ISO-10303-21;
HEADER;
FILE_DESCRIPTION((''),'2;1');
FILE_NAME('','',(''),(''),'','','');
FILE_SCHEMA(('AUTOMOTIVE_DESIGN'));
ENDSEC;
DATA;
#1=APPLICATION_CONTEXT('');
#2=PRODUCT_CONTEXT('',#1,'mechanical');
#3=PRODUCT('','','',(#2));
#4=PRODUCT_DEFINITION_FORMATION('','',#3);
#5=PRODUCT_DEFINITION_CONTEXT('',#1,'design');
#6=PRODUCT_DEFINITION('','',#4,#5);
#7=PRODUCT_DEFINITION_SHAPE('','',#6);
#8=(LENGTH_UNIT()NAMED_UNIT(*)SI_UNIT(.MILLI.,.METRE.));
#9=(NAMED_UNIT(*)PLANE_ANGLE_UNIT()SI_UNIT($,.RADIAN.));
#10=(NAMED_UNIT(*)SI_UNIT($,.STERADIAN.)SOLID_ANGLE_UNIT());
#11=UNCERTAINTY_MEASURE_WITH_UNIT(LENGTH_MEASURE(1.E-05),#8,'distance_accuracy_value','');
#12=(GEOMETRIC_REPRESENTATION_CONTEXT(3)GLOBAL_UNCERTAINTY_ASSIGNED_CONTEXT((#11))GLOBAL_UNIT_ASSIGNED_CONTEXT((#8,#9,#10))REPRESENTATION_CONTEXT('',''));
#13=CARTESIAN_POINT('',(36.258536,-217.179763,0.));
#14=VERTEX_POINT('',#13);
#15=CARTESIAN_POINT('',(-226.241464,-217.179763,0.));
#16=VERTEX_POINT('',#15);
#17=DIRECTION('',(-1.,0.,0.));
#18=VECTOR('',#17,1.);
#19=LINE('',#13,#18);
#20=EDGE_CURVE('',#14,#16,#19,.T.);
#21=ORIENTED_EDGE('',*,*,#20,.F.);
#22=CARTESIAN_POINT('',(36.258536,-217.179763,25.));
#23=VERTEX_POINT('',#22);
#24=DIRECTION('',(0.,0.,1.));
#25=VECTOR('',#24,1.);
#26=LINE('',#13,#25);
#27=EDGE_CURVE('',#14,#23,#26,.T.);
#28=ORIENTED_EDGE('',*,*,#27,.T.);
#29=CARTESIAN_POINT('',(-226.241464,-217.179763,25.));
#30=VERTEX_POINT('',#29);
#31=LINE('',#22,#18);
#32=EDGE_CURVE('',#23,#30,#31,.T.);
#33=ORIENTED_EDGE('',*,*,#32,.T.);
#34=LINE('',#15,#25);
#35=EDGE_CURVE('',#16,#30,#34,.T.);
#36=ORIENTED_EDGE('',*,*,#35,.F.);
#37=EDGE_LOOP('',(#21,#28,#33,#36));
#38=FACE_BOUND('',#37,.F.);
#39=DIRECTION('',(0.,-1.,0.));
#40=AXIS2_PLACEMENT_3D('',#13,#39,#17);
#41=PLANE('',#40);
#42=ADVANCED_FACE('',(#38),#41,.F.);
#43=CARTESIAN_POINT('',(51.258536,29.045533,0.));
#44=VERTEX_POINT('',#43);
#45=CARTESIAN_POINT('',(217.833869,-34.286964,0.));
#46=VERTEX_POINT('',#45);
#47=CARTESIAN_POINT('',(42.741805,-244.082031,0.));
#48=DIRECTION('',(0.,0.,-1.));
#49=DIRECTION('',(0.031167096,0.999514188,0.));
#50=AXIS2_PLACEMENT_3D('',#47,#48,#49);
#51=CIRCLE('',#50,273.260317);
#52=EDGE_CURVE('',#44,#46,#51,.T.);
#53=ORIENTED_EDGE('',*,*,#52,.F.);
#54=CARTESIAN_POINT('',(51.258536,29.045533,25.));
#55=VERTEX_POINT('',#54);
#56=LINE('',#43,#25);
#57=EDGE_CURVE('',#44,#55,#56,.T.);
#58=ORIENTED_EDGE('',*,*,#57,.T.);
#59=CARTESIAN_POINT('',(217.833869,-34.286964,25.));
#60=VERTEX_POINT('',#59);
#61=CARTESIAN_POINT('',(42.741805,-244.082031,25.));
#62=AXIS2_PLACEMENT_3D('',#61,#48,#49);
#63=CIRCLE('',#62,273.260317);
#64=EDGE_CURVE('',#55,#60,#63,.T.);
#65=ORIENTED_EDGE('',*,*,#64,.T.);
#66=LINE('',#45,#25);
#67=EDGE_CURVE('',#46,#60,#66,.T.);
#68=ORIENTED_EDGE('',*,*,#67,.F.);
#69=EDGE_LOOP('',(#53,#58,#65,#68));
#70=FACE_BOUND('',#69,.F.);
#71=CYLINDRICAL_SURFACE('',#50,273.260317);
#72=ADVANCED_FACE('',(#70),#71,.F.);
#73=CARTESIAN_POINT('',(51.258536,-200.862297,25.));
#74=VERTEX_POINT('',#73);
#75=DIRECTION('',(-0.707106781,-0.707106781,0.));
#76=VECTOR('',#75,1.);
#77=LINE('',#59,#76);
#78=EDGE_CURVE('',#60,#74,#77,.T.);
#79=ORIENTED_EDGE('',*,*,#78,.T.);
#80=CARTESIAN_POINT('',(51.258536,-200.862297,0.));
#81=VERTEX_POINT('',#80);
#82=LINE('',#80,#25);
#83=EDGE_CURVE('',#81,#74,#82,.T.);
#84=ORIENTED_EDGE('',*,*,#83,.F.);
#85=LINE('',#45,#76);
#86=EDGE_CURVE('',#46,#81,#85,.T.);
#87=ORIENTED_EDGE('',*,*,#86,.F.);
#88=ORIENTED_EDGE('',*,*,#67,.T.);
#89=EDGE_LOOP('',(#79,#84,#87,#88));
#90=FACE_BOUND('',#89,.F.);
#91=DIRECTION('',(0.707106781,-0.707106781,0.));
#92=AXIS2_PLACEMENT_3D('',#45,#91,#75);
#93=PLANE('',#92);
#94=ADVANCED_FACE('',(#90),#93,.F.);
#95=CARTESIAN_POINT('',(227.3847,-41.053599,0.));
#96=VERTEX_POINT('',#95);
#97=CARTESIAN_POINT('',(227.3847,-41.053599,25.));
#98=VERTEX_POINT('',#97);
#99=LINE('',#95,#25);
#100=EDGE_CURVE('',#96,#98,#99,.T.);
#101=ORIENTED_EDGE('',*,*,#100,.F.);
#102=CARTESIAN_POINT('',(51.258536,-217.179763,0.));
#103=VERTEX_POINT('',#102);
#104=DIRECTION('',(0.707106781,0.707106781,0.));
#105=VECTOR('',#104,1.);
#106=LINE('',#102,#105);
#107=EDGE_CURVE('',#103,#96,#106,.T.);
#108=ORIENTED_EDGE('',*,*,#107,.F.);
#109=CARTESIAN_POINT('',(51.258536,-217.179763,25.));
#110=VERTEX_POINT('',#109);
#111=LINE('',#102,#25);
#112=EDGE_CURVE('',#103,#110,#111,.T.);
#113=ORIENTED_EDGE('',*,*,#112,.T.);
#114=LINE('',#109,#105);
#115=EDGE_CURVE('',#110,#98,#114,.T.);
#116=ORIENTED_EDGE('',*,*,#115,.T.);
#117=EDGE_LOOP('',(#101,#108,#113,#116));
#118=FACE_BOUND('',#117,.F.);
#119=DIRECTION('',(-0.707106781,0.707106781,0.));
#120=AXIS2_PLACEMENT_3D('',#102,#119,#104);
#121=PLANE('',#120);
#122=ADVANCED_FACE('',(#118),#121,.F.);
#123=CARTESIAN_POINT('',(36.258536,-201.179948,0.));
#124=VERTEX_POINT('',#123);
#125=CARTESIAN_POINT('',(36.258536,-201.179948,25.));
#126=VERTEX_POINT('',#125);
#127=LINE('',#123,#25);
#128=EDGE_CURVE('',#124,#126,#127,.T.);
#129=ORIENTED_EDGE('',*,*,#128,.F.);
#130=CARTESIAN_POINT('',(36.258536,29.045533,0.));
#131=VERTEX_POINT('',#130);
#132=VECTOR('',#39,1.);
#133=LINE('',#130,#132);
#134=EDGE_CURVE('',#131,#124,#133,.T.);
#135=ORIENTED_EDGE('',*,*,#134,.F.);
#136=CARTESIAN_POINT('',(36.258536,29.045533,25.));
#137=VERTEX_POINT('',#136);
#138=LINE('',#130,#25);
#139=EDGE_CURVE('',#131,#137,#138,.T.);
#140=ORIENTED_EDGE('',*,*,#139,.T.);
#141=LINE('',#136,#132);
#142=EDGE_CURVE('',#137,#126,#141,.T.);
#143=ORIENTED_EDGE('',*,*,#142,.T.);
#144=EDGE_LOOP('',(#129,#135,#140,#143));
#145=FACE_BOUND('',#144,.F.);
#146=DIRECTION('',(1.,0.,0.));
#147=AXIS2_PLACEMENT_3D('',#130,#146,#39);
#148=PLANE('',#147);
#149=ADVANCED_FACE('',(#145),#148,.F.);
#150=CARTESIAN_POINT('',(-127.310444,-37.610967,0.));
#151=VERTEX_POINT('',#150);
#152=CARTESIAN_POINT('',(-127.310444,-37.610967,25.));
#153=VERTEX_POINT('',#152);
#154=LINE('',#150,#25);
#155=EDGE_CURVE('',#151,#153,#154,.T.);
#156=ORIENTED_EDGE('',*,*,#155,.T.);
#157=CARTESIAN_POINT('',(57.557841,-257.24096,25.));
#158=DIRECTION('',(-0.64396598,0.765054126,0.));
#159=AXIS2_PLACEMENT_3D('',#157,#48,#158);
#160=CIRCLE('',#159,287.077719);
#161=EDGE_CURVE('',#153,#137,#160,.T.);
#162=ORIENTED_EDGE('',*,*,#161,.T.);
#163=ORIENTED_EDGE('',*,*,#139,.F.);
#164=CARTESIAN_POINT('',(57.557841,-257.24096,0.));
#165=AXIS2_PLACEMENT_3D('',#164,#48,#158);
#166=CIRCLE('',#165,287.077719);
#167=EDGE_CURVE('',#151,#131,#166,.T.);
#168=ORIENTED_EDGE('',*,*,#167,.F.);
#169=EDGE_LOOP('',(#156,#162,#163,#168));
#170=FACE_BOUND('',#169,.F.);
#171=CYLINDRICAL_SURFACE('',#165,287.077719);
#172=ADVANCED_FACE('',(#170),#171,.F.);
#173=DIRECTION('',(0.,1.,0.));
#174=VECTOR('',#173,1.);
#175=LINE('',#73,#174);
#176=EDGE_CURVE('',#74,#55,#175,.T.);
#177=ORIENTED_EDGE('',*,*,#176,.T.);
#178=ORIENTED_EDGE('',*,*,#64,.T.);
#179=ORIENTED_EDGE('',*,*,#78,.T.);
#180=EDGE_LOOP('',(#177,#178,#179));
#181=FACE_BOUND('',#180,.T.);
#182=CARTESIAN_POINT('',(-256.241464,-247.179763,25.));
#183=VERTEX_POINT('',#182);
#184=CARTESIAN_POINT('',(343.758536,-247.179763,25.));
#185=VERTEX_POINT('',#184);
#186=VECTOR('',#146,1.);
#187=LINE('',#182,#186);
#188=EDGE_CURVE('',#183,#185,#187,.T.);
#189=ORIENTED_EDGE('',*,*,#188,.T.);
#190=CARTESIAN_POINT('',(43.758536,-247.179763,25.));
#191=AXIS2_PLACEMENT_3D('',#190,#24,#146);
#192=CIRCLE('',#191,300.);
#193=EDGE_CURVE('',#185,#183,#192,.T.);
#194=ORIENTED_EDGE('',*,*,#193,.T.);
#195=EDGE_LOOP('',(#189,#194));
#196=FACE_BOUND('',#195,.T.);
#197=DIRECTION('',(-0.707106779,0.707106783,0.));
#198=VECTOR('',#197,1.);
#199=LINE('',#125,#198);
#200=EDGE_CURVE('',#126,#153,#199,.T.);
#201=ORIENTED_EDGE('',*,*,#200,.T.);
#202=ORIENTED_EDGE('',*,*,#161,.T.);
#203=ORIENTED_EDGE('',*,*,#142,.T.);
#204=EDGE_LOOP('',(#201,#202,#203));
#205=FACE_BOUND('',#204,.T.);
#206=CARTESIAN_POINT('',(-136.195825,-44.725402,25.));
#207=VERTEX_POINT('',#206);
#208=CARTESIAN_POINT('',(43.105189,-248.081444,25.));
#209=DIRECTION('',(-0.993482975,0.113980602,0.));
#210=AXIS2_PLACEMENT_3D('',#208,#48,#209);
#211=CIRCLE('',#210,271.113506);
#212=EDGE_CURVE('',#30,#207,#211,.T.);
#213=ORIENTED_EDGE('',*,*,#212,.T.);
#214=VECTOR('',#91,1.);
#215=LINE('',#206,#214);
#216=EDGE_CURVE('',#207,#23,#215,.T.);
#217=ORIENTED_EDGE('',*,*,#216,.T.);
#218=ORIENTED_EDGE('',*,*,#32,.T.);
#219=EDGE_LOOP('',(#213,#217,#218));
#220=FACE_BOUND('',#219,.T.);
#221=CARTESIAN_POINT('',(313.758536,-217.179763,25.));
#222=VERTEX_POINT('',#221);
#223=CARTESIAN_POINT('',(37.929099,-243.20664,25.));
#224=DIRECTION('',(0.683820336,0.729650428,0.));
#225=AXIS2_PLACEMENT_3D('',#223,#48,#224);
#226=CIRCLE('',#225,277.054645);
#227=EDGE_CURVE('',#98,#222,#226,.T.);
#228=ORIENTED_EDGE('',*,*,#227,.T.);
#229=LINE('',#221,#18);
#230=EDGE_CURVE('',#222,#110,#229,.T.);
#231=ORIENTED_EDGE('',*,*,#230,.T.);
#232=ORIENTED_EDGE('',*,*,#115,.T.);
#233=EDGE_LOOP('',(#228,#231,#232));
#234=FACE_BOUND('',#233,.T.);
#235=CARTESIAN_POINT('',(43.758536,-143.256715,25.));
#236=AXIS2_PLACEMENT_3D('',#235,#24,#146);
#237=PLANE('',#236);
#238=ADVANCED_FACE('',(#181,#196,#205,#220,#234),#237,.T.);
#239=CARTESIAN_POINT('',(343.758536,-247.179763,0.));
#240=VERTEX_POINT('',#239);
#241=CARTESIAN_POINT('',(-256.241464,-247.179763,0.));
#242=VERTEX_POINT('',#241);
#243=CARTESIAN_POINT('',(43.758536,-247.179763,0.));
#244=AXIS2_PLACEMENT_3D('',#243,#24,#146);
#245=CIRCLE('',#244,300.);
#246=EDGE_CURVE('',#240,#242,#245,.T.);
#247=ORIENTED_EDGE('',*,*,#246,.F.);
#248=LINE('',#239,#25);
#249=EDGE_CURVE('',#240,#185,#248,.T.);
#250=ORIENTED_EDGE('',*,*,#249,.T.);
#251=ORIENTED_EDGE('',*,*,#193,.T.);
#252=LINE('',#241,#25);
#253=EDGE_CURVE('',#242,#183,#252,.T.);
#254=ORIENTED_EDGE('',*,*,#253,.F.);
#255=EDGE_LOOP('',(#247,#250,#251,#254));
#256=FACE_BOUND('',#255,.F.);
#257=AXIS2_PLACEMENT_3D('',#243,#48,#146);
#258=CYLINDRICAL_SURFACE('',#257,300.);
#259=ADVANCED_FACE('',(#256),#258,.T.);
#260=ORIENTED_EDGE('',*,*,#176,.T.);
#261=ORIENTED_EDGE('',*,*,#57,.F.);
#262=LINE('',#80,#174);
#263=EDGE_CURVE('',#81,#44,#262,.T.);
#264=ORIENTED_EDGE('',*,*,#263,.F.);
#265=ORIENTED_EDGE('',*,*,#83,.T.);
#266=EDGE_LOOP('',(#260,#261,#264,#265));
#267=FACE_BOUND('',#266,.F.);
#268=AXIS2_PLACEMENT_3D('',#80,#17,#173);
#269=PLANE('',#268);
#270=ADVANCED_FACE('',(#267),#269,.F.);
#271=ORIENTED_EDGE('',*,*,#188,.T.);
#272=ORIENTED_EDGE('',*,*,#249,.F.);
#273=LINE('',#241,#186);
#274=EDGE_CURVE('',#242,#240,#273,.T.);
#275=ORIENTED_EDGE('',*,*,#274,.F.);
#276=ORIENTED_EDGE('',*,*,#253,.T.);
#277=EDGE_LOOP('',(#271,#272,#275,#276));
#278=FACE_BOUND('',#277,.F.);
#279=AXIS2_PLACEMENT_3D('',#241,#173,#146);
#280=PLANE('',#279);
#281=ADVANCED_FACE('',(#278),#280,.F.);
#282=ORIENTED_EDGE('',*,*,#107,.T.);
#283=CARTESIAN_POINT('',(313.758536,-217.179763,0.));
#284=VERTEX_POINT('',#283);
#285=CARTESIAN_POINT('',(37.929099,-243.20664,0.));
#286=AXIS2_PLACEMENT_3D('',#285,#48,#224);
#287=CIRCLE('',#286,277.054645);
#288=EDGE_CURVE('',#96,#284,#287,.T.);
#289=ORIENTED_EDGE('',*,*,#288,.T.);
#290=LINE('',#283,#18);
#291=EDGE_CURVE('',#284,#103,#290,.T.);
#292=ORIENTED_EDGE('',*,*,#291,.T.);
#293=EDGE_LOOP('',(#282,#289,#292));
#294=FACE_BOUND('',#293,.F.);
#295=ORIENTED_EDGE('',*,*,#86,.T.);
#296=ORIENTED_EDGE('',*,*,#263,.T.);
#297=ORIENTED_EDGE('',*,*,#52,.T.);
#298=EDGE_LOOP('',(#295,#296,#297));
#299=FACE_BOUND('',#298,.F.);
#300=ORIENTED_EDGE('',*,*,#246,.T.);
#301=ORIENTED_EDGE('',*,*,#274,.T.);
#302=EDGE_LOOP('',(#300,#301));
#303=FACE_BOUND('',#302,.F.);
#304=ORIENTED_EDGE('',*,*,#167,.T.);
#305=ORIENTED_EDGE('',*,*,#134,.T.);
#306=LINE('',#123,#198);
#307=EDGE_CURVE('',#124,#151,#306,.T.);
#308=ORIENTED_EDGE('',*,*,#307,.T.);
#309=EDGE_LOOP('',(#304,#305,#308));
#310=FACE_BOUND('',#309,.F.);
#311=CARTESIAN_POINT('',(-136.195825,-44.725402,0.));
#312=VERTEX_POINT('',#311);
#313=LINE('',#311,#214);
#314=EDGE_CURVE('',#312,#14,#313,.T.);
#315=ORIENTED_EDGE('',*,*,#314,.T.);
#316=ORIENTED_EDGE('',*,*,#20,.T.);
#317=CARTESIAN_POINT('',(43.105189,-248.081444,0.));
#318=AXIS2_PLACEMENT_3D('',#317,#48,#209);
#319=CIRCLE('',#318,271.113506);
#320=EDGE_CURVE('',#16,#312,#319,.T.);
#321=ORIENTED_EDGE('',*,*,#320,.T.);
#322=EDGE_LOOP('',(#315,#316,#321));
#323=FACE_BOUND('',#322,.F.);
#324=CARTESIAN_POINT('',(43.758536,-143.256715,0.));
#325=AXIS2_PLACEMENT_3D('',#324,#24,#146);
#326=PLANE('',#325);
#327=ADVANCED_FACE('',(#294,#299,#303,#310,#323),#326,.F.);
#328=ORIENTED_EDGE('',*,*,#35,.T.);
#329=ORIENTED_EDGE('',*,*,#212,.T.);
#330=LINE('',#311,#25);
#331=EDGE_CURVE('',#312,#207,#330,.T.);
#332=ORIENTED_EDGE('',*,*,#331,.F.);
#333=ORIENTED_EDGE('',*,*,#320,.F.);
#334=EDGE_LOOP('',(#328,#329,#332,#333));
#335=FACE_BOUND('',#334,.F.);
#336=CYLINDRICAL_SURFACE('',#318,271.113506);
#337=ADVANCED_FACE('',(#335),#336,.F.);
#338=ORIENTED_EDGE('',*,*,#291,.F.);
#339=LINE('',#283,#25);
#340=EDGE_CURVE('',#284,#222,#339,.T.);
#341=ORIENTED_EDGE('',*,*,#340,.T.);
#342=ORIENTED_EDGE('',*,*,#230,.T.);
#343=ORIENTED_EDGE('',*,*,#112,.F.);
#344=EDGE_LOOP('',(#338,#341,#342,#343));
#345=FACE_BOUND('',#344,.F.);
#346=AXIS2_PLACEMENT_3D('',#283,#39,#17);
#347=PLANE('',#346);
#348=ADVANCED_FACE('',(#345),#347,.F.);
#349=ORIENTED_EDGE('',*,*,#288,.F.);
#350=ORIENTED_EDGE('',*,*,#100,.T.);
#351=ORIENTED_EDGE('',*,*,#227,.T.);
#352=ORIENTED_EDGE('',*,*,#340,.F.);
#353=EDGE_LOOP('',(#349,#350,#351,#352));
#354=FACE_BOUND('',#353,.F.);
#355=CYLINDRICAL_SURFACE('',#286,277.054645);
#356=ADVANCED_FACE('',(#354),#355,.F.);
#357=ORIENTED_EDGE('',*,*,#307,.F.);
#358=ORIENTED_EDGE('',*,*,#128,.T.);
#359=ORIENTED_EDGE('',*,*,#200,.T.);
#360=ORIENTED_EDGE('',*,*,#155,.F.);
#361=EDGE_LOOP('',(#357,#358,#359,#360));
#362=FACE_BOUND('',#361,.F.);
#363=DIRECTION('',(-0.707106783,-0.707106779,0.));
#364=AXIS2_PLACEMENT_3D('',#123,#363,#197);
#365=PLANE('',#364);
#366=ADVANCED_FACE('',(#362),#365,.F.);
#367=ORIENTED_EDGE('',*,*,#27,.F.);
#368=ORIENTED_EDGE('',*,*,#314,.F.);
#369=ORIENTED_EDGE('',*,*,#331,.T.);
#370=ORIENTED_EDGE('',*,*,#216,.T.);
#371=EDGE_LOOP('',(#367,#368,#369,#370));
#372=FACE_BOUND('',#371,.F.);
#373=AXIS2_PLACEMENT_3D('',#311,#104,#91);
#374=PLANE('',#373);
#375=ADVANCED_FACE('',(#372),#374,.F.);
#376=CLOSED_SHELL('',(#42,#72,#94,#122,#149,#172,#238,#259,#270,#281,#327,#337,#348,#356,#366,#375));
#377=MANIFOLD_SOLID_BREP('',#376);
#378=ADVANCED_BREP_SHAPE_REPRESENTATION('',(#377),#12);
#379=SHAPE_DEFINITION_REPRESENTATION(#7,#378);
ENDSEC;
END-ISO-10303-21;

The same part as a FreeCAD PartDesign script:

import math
import FreeCAD as App
import Part
import Sketcher
from FreeCAD import Vector
Q = App.Units.Quantity

doc = App.newDocument("Part")
body = doc.addObject("PartDesign::Body", "Body")

sketch1 = body.newObject("Sketcher::SketchObject", "Sketch")
sketch1.AttachmentSupport = (doc.getObject("XY_Plane"), [""])
sketch1.MapMode = "FlatFace"
sketch1.addGeometry(Part.LineSegment(Vector(-256.241464, -247.179763, 0), Vector(343.758536, -247.179763, 0)), False)
sketch1.addGeometry(Part.ArcOfCircle(Part.Circle(Vector(43.758536, -247.179763, 0), Vector(0, 0, 1), 300), math.radians(0), math.radians(180)), False)
sketch1.addGeometry(Part.ArcOfCircle(Part.Circle(Vector(43.105189, -248.081444, 0), Vector(0, 0, 1), 271.113506), math.radians(131.40294), math.radians(173.455169)), False)
sketch1.addGeometry(Part.LineSegment(Vector(-136.195825, -44.725402, 0), Vector(36.258536, -217.179763, 0)), False)
sketch1.addGeometry(Part.LineSegment(Vector(36.258536, -217.179763, 0), Vector(-226.241464, -217.179763, 0)), False)
sketch1.addGeometry(Part.ArcOfCircle(Part.Circle(Vector(37.929099, -243.20664, 0), Vector(0, 0, 1), 277.054645), math.radians(5.390389), math.radians(46.857096)), False)
sketch1.addGeometry(Part.LineSegment(Vector(313.758536, -217.179763, 0), Vector(51.258536, -217.179763, 0)), False)
sketch1.addGeometry(Part.LineSegment(Vector(51.258536, -217.179763, 0), Vector(227.3847, -41.053599, 0)), False)
sketch1.addGeometry(Part.ArcOfCircle(Part.Circle(Vector(57.557841, -257.24096, 0), Vector(0, 0, 1), 287.077719), math.radians(94.254885), math.radians(130.088192)), False)
sketch1.addGeometry(Part.LineSegment(Vector(36.258536, 29.045533, 0), Vector(36.258536, -201.179948, 0)), False)
sketch1.addGeometry(Part.LineSegment(Vector(36.258536, -201.179948, 0), Vector(-127.310444, -37.610967, 0)), False)
sketch1.addGeometry(Part.ArcOfCircle(Part.Circle(Vector(42.741805, -244.082031, 0), Vector(0, 0, 1), 273.260317), math.radians(50.152091), math.radians(88.213968)), False)
sketch1.addGeometry(Part.LineSegment(Vector(217.833869, -34.286964, 0), Vector(51.258536, -200.862297, 0)), False)
sketch1.addGeometry(Part.LineSegment(Vector(51.258536, -200.862297, 0), Vector(51.258536, 29.045533, 0)), False)
sketch1.addConstraint(Sketcher.Constraint("Coincident", 0, 1, 1, 2))
sketch1.addConstraint(Sketcher.Constraint("Coincident", 1, 1, 0, 2))
sketch1.addConstraint(Sketcher.Constraint("Coincident", 2, 1, 3, 1))
sketch1.addConstraint(Sketcher.Constraint("Coincident", 3, 2, 4, 1))
sketch1.addConstraint(Sketcher.Constraint("Coincident", 4, 2, 2, 2))
sketch1.addConstraint(Sketcher.Constraint("Coincident", 5, 1, 6, 1))
sketch1.addConstraint(Sketcher.Constraint("Coincident", 6, 2, 7, 1))
sketch1.addConstraint(Sketcher.Constraint("Coincident", 7, 2, 5, 2))
sketch1.addConstraint(Sketcher.Constraint("Coincident", 8, 1, 9, 1))
sketch1.addConstraint(Sketcher.Constraint("Coincident", 9, 2, 10, 1))
sketch1.addConstraint(Sketcher.Constraint("Coincident", 10, 2, 8, 2))
sketch1.addConstraint(Sketcher.Constraint("Coincident", 11, 1, 12, 1))
sketch1.addConstraint(Sketcher.Constraint("Coincident", 12, 2, 13, 1))
sketch1.addConstraint(Sketcher.Constraint("Coincident", 13, 2, 11, 2))
sketch1.addConstraint(Sketcher.Constraint("Horizontal", 0))
sketch1.addConstraint(Sketcher.Constraint("Horizontal", 4))
sketch1.addConstraint(Sketcher.Constraint("Horizontal", 6))
sketch1.addConstraint(Sketcher.Constraint("Vertical", 9))
sketch1.addConstraint(Sketcher.Constraint("Vertical", 13))
sketch1.addConstraint(Sketcher.Constraint("Perpendicular", 3, 7))
sketch1.addConstraint(Sketcher.Constraint("Perpendicular", 7, 10))
sketch1.addConstraint(Sketcher.Constraint("Perpendicular", 10, 12))
sketch1.addConstraint(Sketcher.Constraint("Horizontal", 1, 3, 0, 1))
sketch1.addConstraint(Sketcher.Constraint("Horizontal", 4, 2, 5, 1))
sketch1.addConstraint(Sketcher.Constraint("Horizontal", 8, 1, 13, 2))
sketch1.addConstraint(Sketcher.Constraint("Vertical", 3, 2, 8, 1))
sketch1.addConstraint(Sketcher.Constraint("Vertical", 6, 2, 12, 2))
sketch1.addConstraint(Sketcher.Constraint("Equal", 4, 6))
sketch1.addConstraint(Sketcher.Constraint("Radius", 1, 300.0))
sketch1.addConstraint(Sketcher.Constraint("Angle", 3, Q("-45 deg")))
sketch1.addConstraint(Sketcher.Constraint("DistanceX", 4, 2, 4, 1, 262.5))
sketch1.addConstraint(Sketcher.Constraint("DistanceY", 1, 3, 3, 2, 30.0))
sketch1.addConstraint(Sketcher.Constraint("DistanceX", 0, 1, 4, 2, 30.0))
sketch1.addConstraint(Sketcher.Constraint("DistanceX", 5, 1, 1, 1, 30.0))
sketch1.addConstraint(Sketcher.Constraint("Radius", 8, 287.077719))
sketch1.addConstraint(Sketcher.Constraint("Radius", 2, 271.113506))
sketch1.addConstraint(Sketcher.Constraint("Radius", 5, 277.054645))
sketch1.addConstraint(Sketcher.Constraint("Radius", 11, 273.260317))
sketch1.addConstraint(Sketcher.Constraint("DistanceY", 9, 2, 9, 1, 230.225481))
sketch1.addConstraint(Sketcher.Constraint("DistanceY", 13, 1, 13, 2, 229.90783))
sketch1.addConstraint(Sketcher.Constraint("DistanceX", -1, 1, 5, 3, 37.929099))
sketch1.addConstraint(Sketcher.Constraint("DistanceX", -1, 1, 7, 2, 227.3847))
sketch1.addConstraint(Sketcher.Constraint("DistanceY", 7, 2, -1, 1, 41.053599))
sketch1.addConstraint(Sketcher.Constraint("DistanceY", 10, 2, 8, 1, 66.6565))
sketch1.addConstraint(Sketcher.Constraint("DistanceX", -1, 1, 2, 3, 43.105189))
sketch1.addConstraint(Sketcher.Constraint("DistanceY", 8, 3, -1, 1, 257.24096))
sketch1.addConstraint(Sketcher.Constraint("DistanceY", 11, 3, -1, 1, 244.082031))
pad1 = body.newObject("PartDesign::Pad", "Pad")
pad1.Profile = sketch1
pad1.Length = 25

doc.recompute()
